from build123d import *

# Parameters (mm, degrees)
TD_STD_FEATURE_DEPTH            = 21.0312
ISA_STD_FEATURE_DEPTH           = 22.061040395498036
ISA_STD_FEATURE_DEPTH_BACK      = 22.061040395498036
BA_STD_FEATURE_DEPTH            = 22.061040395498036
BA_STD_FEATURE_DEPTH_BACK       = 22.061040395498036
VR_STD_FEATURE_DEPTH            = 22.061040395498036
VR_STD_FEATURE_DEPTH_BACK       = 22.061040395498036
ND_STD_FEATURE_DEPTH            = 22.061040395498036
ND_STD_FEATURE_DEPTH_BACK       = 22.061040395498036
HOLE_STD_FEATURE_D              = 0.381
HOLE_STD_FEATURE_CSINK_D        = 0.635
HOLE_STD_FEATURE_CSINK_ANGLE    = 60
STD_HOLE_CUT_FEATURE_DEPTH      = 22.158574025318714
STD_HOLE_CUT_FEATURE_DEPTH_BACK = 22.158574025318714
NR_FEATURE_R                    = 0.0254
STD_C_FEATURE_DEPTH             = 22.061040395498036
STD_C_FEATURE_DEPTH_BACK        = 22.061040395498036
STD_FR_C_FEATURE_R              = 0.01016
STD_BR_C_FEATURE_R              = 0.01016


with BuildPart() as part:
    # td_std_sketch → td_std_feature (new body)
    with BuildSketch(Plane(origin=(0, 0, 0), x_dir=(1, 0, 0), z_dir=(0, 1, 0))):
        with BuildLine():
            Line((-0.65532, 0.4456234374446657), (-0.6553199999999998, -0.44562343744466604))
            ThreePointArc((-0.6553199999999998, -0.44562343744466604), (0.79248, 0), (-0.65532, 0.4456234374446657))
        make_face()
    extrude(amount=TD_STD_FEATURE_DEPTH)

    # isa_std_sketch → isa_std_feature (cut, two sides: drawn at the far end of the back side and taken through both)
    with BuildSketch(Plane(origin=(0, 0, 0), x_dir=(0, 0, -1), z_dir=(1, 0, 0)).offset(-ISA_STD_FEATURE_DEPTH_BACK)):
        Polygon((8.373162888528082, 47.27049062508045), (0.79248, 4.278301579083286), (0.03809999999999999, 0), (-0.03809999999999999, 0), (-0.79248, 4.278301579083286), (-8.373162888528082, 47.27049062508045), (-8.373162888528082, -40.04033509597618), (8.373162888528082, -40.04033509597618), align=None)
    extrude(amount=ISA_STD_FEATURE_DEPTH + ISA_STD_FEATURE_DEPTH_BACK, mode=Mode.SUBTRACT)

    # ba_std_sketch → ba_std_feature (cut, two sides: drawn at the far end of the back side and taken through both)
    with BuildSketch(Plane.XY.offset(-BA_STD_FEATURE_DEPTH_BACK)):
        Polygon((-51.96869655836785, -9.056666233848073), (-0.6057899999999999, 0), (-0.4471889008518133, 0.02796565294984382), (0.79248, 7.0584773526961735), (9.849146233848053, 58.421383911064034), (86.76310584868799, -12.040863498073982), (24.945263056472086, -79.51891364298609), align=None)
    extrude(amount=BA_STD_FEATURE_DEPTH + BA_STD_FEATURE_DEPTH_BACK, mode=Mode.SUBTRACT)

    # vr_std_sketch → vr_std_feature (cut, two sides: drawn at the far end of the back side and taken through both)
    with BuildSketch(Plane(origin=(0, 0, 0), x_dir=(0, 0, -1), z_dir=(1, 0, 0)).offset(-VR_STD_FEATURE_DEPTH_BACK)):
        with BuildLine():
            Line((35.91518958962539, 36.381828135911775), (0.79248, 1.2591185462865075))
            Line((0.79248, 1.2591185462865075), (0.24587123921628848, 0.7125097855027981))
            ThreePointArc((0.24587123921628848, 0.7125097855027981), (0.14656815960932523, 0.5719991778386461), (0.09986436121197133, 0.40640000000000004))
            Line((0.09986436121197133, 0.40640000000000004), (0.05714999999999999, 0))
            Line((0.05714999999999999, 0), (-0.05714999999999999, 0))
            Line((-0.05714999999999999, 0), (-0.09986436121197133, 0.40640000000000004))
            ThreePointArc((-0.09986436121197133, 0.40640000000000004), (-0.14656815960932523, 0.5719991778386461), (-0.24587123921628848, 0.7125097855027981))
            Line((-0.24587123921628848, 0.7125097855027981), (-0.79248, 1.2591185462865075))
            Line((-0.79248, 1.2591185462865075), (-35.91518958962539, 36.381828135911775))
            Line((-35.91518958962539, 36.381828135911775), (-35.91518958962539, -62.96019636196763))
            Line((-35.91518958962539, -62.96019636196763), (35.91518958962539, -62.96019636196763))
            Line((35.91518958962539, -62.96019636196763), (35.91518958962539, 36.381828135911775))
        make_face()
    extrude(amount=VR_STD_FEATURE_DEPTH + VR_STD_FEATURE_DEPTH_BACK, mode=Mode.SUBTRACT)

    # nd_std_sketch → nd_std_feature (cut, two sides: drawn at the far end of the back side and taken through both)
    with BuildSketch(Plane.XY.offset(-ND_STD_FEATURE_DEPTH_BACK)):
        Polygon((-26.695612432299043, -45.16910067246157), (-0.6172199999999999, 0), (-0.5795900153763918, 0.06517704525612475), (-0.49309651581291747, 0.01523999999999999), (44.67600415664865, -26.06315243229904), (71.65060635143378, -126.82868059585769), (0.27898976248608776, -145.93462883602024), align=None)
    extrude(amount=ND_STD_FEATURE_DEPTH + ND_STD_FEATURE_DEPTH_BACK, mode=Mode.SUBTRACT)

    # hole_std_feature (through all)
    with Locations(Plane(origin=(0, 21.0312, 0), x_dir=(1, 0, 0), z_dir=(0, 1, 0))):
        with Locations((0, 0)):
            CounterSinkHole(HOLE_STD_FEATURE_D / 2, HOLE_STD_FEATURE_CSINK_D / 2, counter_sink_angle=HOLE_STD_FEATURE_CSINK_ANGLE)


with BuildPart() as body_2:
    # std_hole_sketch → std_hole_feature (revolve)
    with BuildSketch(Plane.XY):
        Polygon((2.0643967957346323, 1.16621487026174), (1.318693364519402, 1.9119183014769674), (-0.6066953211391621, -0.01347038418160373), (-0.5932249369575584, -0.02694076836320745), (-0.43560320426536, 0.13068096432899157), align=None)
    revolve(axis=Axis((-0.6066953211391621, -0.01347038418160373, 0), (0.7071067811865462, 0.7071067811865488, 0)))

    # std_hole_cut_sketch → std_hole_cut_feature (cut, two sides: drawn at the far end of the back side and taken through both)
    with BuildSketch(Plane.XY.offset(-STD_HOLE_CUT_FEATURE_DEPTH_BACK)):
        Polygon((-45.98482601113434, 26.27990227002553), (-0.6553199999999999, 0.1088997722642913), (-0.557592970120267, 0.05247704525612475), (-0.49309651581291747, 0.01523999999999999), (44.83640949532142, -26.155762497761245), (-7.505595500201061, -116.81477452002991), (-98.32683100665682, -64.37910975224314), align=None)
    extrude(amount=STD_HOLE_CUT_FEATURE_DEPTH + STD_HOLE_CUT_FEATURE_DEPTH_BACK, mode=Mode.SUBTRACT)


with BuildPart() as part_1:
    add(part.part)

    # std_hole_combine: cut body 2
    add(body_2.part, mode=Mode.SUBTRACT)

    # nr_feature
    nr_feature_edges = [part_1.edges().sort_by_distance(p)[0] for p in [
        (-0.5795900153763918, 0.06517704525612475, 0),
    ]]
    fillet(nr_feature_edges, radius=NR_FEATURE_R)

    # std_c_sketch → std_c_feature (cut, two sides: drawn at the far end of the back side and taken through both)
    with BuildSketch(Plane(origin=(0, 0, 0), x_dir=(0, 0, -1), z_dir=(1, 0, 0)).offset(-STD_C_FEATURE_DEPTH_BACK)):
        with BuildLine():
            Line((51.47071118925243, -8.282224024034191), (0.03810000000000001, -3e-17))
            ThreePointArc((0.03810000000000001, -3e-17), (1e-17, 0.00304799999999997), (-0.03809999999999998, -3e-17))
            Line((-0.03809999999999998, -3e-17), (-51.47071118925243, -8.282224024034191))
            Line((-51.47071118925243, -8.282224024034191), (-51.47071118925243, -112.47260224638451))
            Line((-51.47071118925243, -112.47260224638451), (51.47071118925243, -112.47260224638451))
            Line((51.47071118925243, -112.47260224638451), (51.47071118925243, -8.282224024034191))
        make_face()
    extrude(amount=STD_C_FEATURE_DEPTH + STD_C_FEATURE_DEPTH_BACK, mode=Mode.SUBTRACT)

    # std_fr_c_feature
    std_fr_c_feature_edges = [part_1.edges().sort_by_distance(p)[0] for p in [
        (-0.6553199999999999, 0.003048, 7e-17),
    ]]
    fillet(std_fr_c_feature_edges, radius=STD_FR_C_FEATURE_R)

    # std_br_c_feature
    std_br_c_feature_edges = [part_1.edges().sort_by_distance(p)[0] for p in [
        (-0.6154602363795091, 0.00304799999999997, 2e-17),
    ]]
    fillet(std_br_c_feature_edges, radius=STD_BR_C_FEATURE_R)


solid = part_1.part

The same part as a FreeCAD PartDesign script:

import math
import FreeCAD as App
import Part
import Sketcher
Q = App.Units.Quantity


def edges_at(feature, points):
    """Names of the edges that pass closest to the given points."""
    edges = feature.Shape.Edges
    near = lambda p: min(range(len(edges)), key=lambda i: edges[i].distToShape(Part.Vertex(*p))[0])
    return sorted({f"Edge{near(p) + 1}" for p in points})

doc = App.newDocument("Part")
params = doc.addObject("Spreadsheet::Sheet", "Params")
for row, (alias, value) in enumerate([
    ("pad1_length", "0.828 in"),
    ("sketch2_height", "0.003 in"),
    ("sketch4_radius", "0.02 in"),
    ("sketch6_diameter", "0.015 in"),
    ("hole_diameter", "0.015 in"),
    ("hole_csink_diameter", "0.025 in"),
    ("revolution_angle", "360 deg"),
    ("fillet_radius", "0.001 in"),
    ("fillet2_radius", "0.0004 in"),
    ("fillet3_radius", "0.0004 in"),
], start=1):
    params.set(f"A{row}", alias)
    params.set(f"B{row}", "=" + value)
    params.setAlias(f"B{row}", alias)

body = doc.addObject("PartDesign::Body", "Body")

sketch1 = body.newObject("Sketcher::SketchObject", "Sketch")
sketch1.AttachmentSupport = (doc.getObject("XZ_Plane"), [""])
sketch1.MapMode = "FlatFace"
sketch1.addGeometry([
    Part.LineSegment(App.Vector(-0.65532, -0.445623, 0), App.Vector(-0.65532, 0.445623, 0)),
    Part.ArcOfCircle(Part.Circle(App.Vector(0, 0, 0), App.Vector(0, 0, 1), 0.79248), math.radians(-145.783949), math.radians(145.783949)),
], False)
sketch1.addConstraint([
    Sketcher.Constraint("Coincident", 0, 1, 1, 1),
    Sketcher.Constraint("Coincident", 1, 2, 0, 2),
    Sketcher.Constraint("Vertical", 0),
    Sketcher.Constraint("Coincident", 1, 3, -1, 1),
    Sketcher.Constraint("Radius", 1, Q("0.0312 in")),
    Sketcher.Constraint("DistanceX", 0, 1, -1, 1, Q("0.0258 in")),
])
pad1 = body.newObject("PartDesign::Pad", "Pad")
pad1.Profile = sketch1
pad1.setExpression("Length", "Params.pad1_length")
pad1.Reversed = True

sketch2 = body.newObject("Sketcher::SketchObject", "Sketch001")
sketch2.AttachmentSupport = (doc.getObject("YZ_Plane"), [""])
sketch2.MapMode = "FlatFace"
sketch2.addGeometry([
    Part.LineSegment(App.Vector(47.270491, -8.373163, 0), App.Vector(0, -0.0381, 0)),
    Part.LineSegment(App.Vector(0, -0.0381, 0), App.Vector(0, 0.0381, 0)),
    Part.LineSegment(App.Vector(0, 0.0381, 0), App.Vector(47.270491, 8.373163, 0)),
    Part.LineSegment(App.Vector(47.270491, 8.373163, 0), App.Vector(-40.040335, 8.373163, 0)),
    Part.LineSegment(App.Vector(-40.040335, 8.373163, 0), App.Vector(-40.040335, -8.373163, 0)),
    Part.LineSegment(App.Vector(-40.040335, -8.373163, 0), App.Vector(47.270491, -8.373163, 0)),
], False)
sketch2.addConstraint([
    Sketcher.Constraint("Coincident", 0, 2, 1, 1),
    Sketcher.Constraint("Coincident", 1, 2, 2, 1),
    Sketcher.Constraint("Coincident", 2, 2, 3, 1),
    Sketcher.Constraint("Coincident", 3, 2, 4, 1),
    Sketcher.Constraint("Coincident", 4, 2, 5, 1),
    Sketcher.Constraint("Coincident", 5, 2, 0, 1),
    Sketcher.Constraint("Vertical", 1),
    Sketcher.Constraint("Horizontal", 3),
    Sketcher.Constraint("Vertical", 4),
    Sketcher.Constraint("Horizontal", 5),
    Sketcher.Constraint("Symmetric", 0, 2, 1, 2, -1, 1),
    Sketcher.Constraint("Symmetric", 2, 2, 5, 2, -1),
    Sketcher.Constraint("Angle", 0, Q("170 deg")),
    Sketcher.Constraint("DistanceY", 1, 1, 1, 2, Q("0.003 in")),
    Sketcher.Constraint("DistanceX", 3, 2, 3, 1, Q("87.310826 mm")),
    Sketcher.Constraint("DistanceY", 4, 2, 4, 1, Q("16.746326 mm")),
])
sketch2.setExpression("Constraints[13]", "Params.sketch2_height")
pocket1 = body.newObject("PartDesign::Pocket", "Pocket")
pocket1.Profile = sketch2
pocket1.Type = "ThroughAll"
pocket1.Midplane = True

sketch3 = body.newObject("Sketcher::SketchObject", "Sketch002")
sketch3.AttachmentSupport = (doc.getObject("XY_Plane"), [""])
sketch3.MapMode = "FlatFace"
sketch3.addGeometry([
    Part.LineSegment(App.Vector(-0.447189, 0.027966, 0), App.Vector(-51.968697, -9.056666, 0)),
    Part.LineSegment(App.Vector(-51.968697, -9.056666, 0), App.Vector(24.945263, -79.518914, 0)),
    Part.LineSegment(App.Vector(24.945263, -79.518914, 0), App.Vector(86.763106, -12.040863, 0)),
    Part.LineSegment(App.Vector(86.763106, -12.040863, 0), App.Vector(9.849146, 58.421384, 0)),
    Part.LineSegment(App.Vector(9.849146, 58.421384, 0), App.Vector(-0.447189, 0.027966, 0)),
], False)
sketch3.addConstraint([
    Sketcher.Constraint("Coincident", 0, 2, 1, 1),
    Sketcher.Constraint("Coincident", 1, 2, 2, 1),
    Sketcher.Constraint("Coincident", 2, 2, 3, 1),
    Sketcher.Constraint("Coincident", 3, 2, 4, 1),
    Sketcher.Constraint("Coincident", 4, 2, 0, 1),
    Sketcher.Constraint("Perpendicular", 1, 2),
    Sketcher.Constraint("Perpendicular", 2, 3),
    Sketcher.Constraint("Equal", 1, 3),
    Sketcher.Constraint("Angle", 0, Q("-170 deg")),
    Sketcher.Constraint("Angle", 4, Q("-100 deg")),
    Sketcher.Constraint("Distance", 0, Q("52.31631 mm")),
    Sketcher.Constraint("Distance", 4, Q("59.294231 mm")),
    Sketcher.Constraint("DistanceX", 4, 2, -1, 1, Q("0.447189 mm")),
    Sketcher.Constraint("DistanceX", 0, 2, 1, 2, Q("76.91396 mm")),
    Sketcher.Constraint("DistanceY", 0, 2, -1, 1, Q("9.056666 mm")),
])
pocket2 = body.newObject("PartDesign::Pocket", "Pocket001")
pocket2.Profile = sketch3
pocket2.Type = "ThroughAll"
pocket2.Midplane = True

sketch4 = body.newObject("Sketcher::SketchObject", "Sketch003")
sketch4.AttachmentSupport = (doc.getObject("YZ_Plane"), [""])
sketch4.MapMode = "FlatFace"
sketch4.addGeometry([
    Part.LineSegment(App.Vector(36.381828, -35.91519, 0), App.Vector(0.71251, -0.245871, 0)),
    Part.ArcOfCircle(Part.Circle(App.Vector(0.3533, -0.605081, 0), App.Vector(0, 0, 1), 0.508), math.radians(45), math.radians(84)),
    Part.LineSegment(App.Vector(0.4064, -0.099864, 0), App.Vector(0, -0.05715, 0)),
    Part.LineSegment(App.Vector(0, -0.05715, 0), App.Vector(0, 0.05715, 0)),
    Part.LineSegment(App.Vector(0, 0.05715, 0), App.Vector(0.4064, 0.099864, 0)),
    Part.ArcOfCircle(Part.Circle(App.Vector(0.3533, 0.605081, 0), App.Vector(0, 0, 1), 0.508), math.radians(-84), math.radians(-45)),
    Part.LineSegment(App.Vector(0.71251, 0.245871, 0), App.Vector(36.381828, 35.91519, 0)),
    Part.LineSegment(App.Vector(36.381828, 35.91519, 0), App.Vector(-62.960196, 35.91519, 0)),
    Part.LineSegment(App.Vector(-62.960196, 35.91519, 0), App.Vector(-62.960196, -35.91519, 0)),
    Part.LineSegment(App.Vector(-62.960196, -35.91519, 0), App.Vector(36.381828, -35.91519, 0)),
], False)
sketch4.addConstraint([
    Sketcher.Constraint("Tangent", 0, 2, 1, 1),
    Sketcher.Constraint("Tangent", 1, 2, 2, 1),
    Sketcher.Constraint("Coincident", 2, 2, 3, 1),
    Sketcher.Constraint("Coincident", 3, 2, 4, 1),
    Sketcher.Constraint("Tangent", 4, 2, 5, 1),
    Sketcher.Constraint("Tangent", 5, 2, 6, 1),
    Sketcher.Constraint("Coincident", 6, 2, 7, 1),
    Sketcher.Constraint("Coincident", 7, 2, 8, 1),
    Sketcher.Constraint("Coincident", 8, 2, 9, 1),
    Sketcher.Constraint("Coincident", 9, 2, 0, 1),
    Sketcher.Constraint("Vertical", 3),
    Sketcher.Constraint("Horizontal", 7),
    Sketcher.Constraint("Vertical", 8),
    Sketcher.Constraint("Horizontal", 9),
    Sketcher.Constraint("Equal", 1, 5),
    Sketcher.Constraint("Symmetric", 2, 2, 3, 2, -1, 1),
    Sketcher.Constraint("Symmetric", 1, 3, 5, 3, -1),
    Sketcher.Constraint("Symmetric", 6, 2, 9, 2, -1),
    Sketcher.Constraint("Perpendicular", 0, 6),
    Sketcher.Constraint("Radius", 1, Q("0.02 in")),
    Sketcher.Constraint("Angle", 2, Q("174 deg")),
    Sketcher.Constraint("DistanceY", 3, 1, 3, 2, Q("0.0045 in")),
    Sketcher.Constraint("DistanceX", -1, 1, 1, 2, Q("0.016 in")),
    Sketcher.Constraint("DistanceY", 8, 2, 8, 1, Q("71.830379 mm")),
    Sketcher.Constraint("DistanceX", 7, 2, 7, 1, Q("99.342024 mm")),
])
sketch4.setExpression("Constraints[19]", "Params.sketch4_radius")
pocket3 = body.newObject("PartDesign::Pocket", "Pocket002")
pocket3.Profile = sketch4
pocket3.Type = "ThroughAll"
pocket3.Midplane = True

sketch5 = body.newObject("Sketcher::SketchObject", "Sketch004")
sketch5.AttachmentSupport = (doc.getObject("XY_Plane"), [""])
sketch5.MapMode = "FlatFace"
sketch5.addGeometry([
    Part.LineSegment(App.Vector(-0.57959, 0.065177, 0), App.Vector(-26.695612, -45.169101, 0)),
    Part.LineSegment(App.Vector(-26.695612, -45.169101, 0), App.Vector(0.27899, -145.934629, 0)),
    Part.LineSegment(App.Vector(0.27899, -145.934629, 0), App.Vector(71.650606, -126.828681, 0)),
    Part.LineSegment(App.Vector(71.650606, -126.828681, 0), App.Vector(44.676004, -26.063152, 0)),
    Part.LineSegment(App.Vector(44.676004, -26.063152, 0), App.Vector(-0.57959, 0.065177, 0)),
], False)
sketch5.addConstraint([
    Sketcher.Constraint("Coincident", 0, 2, 1, 1),
    Sketcher.Constraint("Coincident", 1, 2, 2, 1),
    Sketcher.Constraint("Coincident", 2, 2, 3, 1),
    Sketcher.Constraint("Coincident", 3, 2, 4, 1),
    Sketcher.Constraint("Coincident", 4, 2, 0, 1),
    Sketcher.Constraint("Perpendicular", 1, 2),
    Sketcher.Constraint("Perpendicular", 2, 3),
    Sketcher.Constraint("Perpendicular", 0, 4),
    Sketcher.Constraint("Equal", 1, 3),
    Sketcher.Constraint("Angle", 0, Q("-120 deg")),
    Sketcher.Constraint("DistanceY", 0, 2, -1, 1, Q("45.169101 mm")),
    Sketcher.Constraint("Distance", 1, Q("104.31357 mm")),
    Sketcher.Constraint("Distance", 4, Q("52.256659 mm")),
    Sketcher.Constraint("DistanceX", -1, 1, 1, 2, Q("0.27899 mm")),
    Sketcher.Constraint("DistanceY", 1, 2, -1, 1, Q("145.934629 mm")),
])
pocket4 = body.newObject("PartDesign::Pocket", "Pocket003")
pocket4.Profile = sketch5
pocket4.Type = "ThroughAll"
pocket4.Midplane = True

sketch6 = body.newObject("Sketcher::SketchObject", "Sketch005")
sketch6.AttachmentSupport = (doc.getObject("XZ_Plane"), [""])
sketch6.MapMode = "FlatFace"
sketch6.AttachmentOffset = App.Placement(App.Vector(0, 0, -0.828 * 25.4), App.Rotation())
sketch6.addGeometry(Part.Circle(App.Vector(0, 0, 0), App.Vector(0, 0, 1), 0.1905), False)
sketch6.addConstraint([
    Sketcher.Constraint("Coincident", 0, 3, -1, 1),
    Sketcher.Constraint("Diameter", 0, Q("0.015 in")),
])
sketch6.setExpression("Constraints[1]", "Params.sketch6_diameter")
doc.recompute()
hole = body.newObject("PartDesign::Hole", "Hole")
hole.Profile = sketch6
hole.ThreadType = "None"
hole.setExpression("Diameter", "Params.hole_diameter")
hole.DepthType = "ThroughAll"
hole.HoleCutType = "Countersink"
hole.setExpression("HoleCutDiameter", "Params.hole_csink_diameter")
hole.HoleCutCountersinkAngle = 60
hole.Reversed = True
body2 = doc.addObject("PartDesign::Body", "Body001")

sketch7 = body2.newObject("Sketcher::SketchObject", "Sketch006")
sketch7.AttachmentSupport = (doc.getObject("XY_Plane001"), [""])
sketch7.MapMode = "FlatFace"
sketch7.addGeometry([
    Part.LineSegment(App.Vector(2.064397, 1.166215, 0), App.Vector(1.318693, 1.911918, 0)),
    Part.LineSegment(App.Vector(1.318693, 1.911918, 0), App.Vector(-0.606695, -0.01347, 0)),
    Part.LineSegment(App.Vector(-0.606695, -0.01347, 0), App.Vector(-0.593225, -0.026941, 0)),
    Part.LineSegment(App.Vector(-0.593225, -0.026941, 0), App.Vector(-0.435603, 0.130681, 0)),
    Part.LineSegment(App.Vector(-0.435603, 0.130681, 0), App.Vector(2.064397, 1.166215, 0)),
], False)
sketch7.addGeometry(Part.LineSegment(App.Vector(-0.606695, -0.01347, 0), App.Vector(1.318693, 1.911918, 0)), True)
sketch7.addConstraint([
    Sketcher.Constraint("Coincident", 0, 2, 1, 1),
    Sketcher.Constraint("Coincident", 1, 2, 2, 1),
    Sketcher.Constraint("Coincident", 2, 2, 3, 1),
    Sketcher.Constraint("Coincident", 3, 2, 4, 1),
    Sketcher.Constraint("Coincident", 4, 2, 0, 1),
    Sketcher.Constraint("Coincident", 5, 1, 1, 2),
    Sketcher.Constraint("Coincident", 5, 2, 0, 2),
    Sketcher.Constraint("Perpendicular", 0, 1),
    Sketcher.Constraint("Perpendicular", 1, 2),
    Sketcher.Constraint("Perpendicular", 2, 3),
    Sketcher.Constraint("Angle", 0, Q("135 deg")),
    Sketcher.Constraint("Angle", 4, Q("22.5 deg")),
    Sketcher.Constraint("DistanceX", 3, 2, 4, 2, Q("2.5 mm")),
    Sketcher.Constraint("Distance", 1, Q("2.722911 mm")),
    Sketcher.Constraint("Distance", 2, Q("0.01905 mm")),
    Sketcher.Constraint("DistanceY", -1, 1, 0, 2, Q("1.911918 mm")),
    Sketcher.Constraint("DistanceX", -1, 1, 0, 2, Q("1.318693 mm")),
])
revolution = body2.newObject("PartDesign::Revolution", "Revolution")
revolution.Profile = sketch7
revolution.ReferenceAxis = (sketch7, ["Axis0"])
revolution.setExpression("Angle", "Params.revolution_angle")

sketch8 = body2.newObject("Sketcher::SketchObject", "Sketch007")
sketch8.AttachmentSupport = (doc.getObject("XY_Plane001"), [""])
sketch8.MapMode = "FlatFace"
sketch8.addGeometry([
    Part.LineSegment(App.Vector(44.836409, -26.155762, 0), App.Vector(-45.984826, 26.279902, 0)),
    Part.LineSegment(App.Vector(-45.984826, 26.279902, 0), App.Vector(-98.326831, -64.37911, 0)),
    Part.LineSegment(App.Vector(-98.326831, -64.37911, 0), App.Vector(-7.505596, -116.814775, 0)),
    Part.LineSegment(App.Vector(-7.505596, -116.814775, 0), App.Vector(44.836409, -26.155762, 0)),
], False)
sketch8.addConstraint([
    Sketcher.Constraint("Coincident", 0, 2, 1, 1),
    Sketcher.Constraint("Coincident", 1, 2, 2, 1),
    Sketcher.Constraint("Coincident", 2, 2, 3, 1),
    Sketcher.Constraint("Coincident", 3, 2, 0, 1),
    Sketcher.Constraint("Perpendicular", 0, 1),
    Sketcher.Constraint("Perpendicular", 1, 2),
    Sketcher.Constraint("Perpendicular", 2, 3),
    Sketcher.Constraint("Angle", 0, Q("150 deg")),
    Sketcher.Constraint("Distance", 0, Q("104.87133 mm")),
    Sketcher.Constraint("Distance", 1, Q("104.68401 mm")),
    Sketcher.Constraint("DistanceX", 1, 2, -1, 1, Q("98.326831 mm")),
    Sketcher.Constraint("DistanceY", 1, 2, -1, 1, Q("64.37911 mm")),
])
pocket5 = body2.newObject("PartDesign::Pocket", "Pocket004")
pocket5.Profile = sketch8
pocket5.Type = "ThroughAll"
pocket5.Midplane = True
doc.recompute()

boolean = body.newObject("PartDesign::Boolean", "Boolean")
boolean.Type = "Cut"
boolean.addObjects([body2])
doc.recompute()

fillet = body.newObject("PartDesign::Fillet", "Fillet")
fillet.Base = (boolean, edges_at(boolean, [(-0.58, 0.065, 0)]))
fillet.setExpression("Radius", "Params.fillet_radius")

sketch9 = body.newObject("Sketcher::SketchObject", "Sketch008")
sketch9.AttachmentSupport = (doc.getObject("YZ_Plane"), [""])
sketch9.MapMode = "FlatFace"
sketch9.addGeometry([
    Part.LineSegment(App.Vector(-8.282224, -51.470711, 0), App.Vector(0, -0.0381, 0)),
    Part.ArcOfCircle(Part.Circle(App.Vector(-0.236601, 0, 0), App.Vector(0, 0, 1), 0.239649), math.radians(-9.147843), math.radians(9.147843)),
    Part.LineSegment(App.Vector(0, 0.0381, 0), App.Vector(-8.282224, 51.470711, 0)),
    Part.LineSegment(App.Vector(-8.282224, 51.470711, 0), App.Vector(-112.472602, 51.470711, 0)),
    Part.LineSegment(App.Vector(-112.472602, 51.470711, 0), App.Vector(-112.472602, -51.470711, 0)),
    Part.LineSegment(App.Vector(-112.472602, -51.470711, 0), App.Vector(-8.282224, -51.470711, 0)),
], False)
sketch9.addConstraint([
    Sketcher.Constraint("Tangent", 0, 2, 1, 1),
    Sketcher.Constraint("Tangent", 1, 2, 2, 1),
    Sketcher.Constraint("Coincident", 2, 2, 3, 1),
    Sketcher.Constraint("Coincident", 3, 2, 4, 1),
    Sketcher.Constraint("Coincident", 4, 2, 5, 1),
    Sketcher.Constraint("Coincident", 5, 2, 0, 1),
    Sketcher.Constraint("Horizontal", 3),
    Sketcher.Constraint("Vertical", 4),
    Sketcher.Constraint("Horizontal", 5),
    Sketcher.Constraint("Symmetric", 0, 2, 1, 2, -1, 1),
    Sketcher.Constraint("Symmetric", 2, 2, 5, 2, -1),
    Sketcher.Constraint("Radius", 1, Q("0.239649 mm")),
    Sketcher.Constraint("DistanceY", 0, 2, 1, 2, Q("0.003 in")),
    Sketcher.Constraint("DistanceX", 3, 2, 3, 1, Q("104.190378 mm")),
    Sketcher.Constraint("DistanceX", 3, 2, 1, 3, Q("112.236001 mm")),
])
pocket6 = body.newObject("PartDesign::Pocket", "Pocket005")
pocket6.Profile = sketch9
pocket6.Type = "ThroughAll"
pocket6.Midplane = True
doc.recompute()

fillet2 = body.newObject("PartDesign::Fillet", "Fillet001")
fillet2.Base = (pocket6, edges_at(pocket6, [(-0.655, 0.003, 0)]))
fillet2.setExpression("Radius", "Params.fillet2_radius")
doc.recompute()

fillet3 = body.newObject("PartDesign::Fillet", "Fillet002")
fillet3.Base = (fillet2, edges_at(fillet2, [(-0.615, 0.003, 0)]))
fillet3.setExpression("Radius", "Params.fillet3_radius")

doc.recompute()
